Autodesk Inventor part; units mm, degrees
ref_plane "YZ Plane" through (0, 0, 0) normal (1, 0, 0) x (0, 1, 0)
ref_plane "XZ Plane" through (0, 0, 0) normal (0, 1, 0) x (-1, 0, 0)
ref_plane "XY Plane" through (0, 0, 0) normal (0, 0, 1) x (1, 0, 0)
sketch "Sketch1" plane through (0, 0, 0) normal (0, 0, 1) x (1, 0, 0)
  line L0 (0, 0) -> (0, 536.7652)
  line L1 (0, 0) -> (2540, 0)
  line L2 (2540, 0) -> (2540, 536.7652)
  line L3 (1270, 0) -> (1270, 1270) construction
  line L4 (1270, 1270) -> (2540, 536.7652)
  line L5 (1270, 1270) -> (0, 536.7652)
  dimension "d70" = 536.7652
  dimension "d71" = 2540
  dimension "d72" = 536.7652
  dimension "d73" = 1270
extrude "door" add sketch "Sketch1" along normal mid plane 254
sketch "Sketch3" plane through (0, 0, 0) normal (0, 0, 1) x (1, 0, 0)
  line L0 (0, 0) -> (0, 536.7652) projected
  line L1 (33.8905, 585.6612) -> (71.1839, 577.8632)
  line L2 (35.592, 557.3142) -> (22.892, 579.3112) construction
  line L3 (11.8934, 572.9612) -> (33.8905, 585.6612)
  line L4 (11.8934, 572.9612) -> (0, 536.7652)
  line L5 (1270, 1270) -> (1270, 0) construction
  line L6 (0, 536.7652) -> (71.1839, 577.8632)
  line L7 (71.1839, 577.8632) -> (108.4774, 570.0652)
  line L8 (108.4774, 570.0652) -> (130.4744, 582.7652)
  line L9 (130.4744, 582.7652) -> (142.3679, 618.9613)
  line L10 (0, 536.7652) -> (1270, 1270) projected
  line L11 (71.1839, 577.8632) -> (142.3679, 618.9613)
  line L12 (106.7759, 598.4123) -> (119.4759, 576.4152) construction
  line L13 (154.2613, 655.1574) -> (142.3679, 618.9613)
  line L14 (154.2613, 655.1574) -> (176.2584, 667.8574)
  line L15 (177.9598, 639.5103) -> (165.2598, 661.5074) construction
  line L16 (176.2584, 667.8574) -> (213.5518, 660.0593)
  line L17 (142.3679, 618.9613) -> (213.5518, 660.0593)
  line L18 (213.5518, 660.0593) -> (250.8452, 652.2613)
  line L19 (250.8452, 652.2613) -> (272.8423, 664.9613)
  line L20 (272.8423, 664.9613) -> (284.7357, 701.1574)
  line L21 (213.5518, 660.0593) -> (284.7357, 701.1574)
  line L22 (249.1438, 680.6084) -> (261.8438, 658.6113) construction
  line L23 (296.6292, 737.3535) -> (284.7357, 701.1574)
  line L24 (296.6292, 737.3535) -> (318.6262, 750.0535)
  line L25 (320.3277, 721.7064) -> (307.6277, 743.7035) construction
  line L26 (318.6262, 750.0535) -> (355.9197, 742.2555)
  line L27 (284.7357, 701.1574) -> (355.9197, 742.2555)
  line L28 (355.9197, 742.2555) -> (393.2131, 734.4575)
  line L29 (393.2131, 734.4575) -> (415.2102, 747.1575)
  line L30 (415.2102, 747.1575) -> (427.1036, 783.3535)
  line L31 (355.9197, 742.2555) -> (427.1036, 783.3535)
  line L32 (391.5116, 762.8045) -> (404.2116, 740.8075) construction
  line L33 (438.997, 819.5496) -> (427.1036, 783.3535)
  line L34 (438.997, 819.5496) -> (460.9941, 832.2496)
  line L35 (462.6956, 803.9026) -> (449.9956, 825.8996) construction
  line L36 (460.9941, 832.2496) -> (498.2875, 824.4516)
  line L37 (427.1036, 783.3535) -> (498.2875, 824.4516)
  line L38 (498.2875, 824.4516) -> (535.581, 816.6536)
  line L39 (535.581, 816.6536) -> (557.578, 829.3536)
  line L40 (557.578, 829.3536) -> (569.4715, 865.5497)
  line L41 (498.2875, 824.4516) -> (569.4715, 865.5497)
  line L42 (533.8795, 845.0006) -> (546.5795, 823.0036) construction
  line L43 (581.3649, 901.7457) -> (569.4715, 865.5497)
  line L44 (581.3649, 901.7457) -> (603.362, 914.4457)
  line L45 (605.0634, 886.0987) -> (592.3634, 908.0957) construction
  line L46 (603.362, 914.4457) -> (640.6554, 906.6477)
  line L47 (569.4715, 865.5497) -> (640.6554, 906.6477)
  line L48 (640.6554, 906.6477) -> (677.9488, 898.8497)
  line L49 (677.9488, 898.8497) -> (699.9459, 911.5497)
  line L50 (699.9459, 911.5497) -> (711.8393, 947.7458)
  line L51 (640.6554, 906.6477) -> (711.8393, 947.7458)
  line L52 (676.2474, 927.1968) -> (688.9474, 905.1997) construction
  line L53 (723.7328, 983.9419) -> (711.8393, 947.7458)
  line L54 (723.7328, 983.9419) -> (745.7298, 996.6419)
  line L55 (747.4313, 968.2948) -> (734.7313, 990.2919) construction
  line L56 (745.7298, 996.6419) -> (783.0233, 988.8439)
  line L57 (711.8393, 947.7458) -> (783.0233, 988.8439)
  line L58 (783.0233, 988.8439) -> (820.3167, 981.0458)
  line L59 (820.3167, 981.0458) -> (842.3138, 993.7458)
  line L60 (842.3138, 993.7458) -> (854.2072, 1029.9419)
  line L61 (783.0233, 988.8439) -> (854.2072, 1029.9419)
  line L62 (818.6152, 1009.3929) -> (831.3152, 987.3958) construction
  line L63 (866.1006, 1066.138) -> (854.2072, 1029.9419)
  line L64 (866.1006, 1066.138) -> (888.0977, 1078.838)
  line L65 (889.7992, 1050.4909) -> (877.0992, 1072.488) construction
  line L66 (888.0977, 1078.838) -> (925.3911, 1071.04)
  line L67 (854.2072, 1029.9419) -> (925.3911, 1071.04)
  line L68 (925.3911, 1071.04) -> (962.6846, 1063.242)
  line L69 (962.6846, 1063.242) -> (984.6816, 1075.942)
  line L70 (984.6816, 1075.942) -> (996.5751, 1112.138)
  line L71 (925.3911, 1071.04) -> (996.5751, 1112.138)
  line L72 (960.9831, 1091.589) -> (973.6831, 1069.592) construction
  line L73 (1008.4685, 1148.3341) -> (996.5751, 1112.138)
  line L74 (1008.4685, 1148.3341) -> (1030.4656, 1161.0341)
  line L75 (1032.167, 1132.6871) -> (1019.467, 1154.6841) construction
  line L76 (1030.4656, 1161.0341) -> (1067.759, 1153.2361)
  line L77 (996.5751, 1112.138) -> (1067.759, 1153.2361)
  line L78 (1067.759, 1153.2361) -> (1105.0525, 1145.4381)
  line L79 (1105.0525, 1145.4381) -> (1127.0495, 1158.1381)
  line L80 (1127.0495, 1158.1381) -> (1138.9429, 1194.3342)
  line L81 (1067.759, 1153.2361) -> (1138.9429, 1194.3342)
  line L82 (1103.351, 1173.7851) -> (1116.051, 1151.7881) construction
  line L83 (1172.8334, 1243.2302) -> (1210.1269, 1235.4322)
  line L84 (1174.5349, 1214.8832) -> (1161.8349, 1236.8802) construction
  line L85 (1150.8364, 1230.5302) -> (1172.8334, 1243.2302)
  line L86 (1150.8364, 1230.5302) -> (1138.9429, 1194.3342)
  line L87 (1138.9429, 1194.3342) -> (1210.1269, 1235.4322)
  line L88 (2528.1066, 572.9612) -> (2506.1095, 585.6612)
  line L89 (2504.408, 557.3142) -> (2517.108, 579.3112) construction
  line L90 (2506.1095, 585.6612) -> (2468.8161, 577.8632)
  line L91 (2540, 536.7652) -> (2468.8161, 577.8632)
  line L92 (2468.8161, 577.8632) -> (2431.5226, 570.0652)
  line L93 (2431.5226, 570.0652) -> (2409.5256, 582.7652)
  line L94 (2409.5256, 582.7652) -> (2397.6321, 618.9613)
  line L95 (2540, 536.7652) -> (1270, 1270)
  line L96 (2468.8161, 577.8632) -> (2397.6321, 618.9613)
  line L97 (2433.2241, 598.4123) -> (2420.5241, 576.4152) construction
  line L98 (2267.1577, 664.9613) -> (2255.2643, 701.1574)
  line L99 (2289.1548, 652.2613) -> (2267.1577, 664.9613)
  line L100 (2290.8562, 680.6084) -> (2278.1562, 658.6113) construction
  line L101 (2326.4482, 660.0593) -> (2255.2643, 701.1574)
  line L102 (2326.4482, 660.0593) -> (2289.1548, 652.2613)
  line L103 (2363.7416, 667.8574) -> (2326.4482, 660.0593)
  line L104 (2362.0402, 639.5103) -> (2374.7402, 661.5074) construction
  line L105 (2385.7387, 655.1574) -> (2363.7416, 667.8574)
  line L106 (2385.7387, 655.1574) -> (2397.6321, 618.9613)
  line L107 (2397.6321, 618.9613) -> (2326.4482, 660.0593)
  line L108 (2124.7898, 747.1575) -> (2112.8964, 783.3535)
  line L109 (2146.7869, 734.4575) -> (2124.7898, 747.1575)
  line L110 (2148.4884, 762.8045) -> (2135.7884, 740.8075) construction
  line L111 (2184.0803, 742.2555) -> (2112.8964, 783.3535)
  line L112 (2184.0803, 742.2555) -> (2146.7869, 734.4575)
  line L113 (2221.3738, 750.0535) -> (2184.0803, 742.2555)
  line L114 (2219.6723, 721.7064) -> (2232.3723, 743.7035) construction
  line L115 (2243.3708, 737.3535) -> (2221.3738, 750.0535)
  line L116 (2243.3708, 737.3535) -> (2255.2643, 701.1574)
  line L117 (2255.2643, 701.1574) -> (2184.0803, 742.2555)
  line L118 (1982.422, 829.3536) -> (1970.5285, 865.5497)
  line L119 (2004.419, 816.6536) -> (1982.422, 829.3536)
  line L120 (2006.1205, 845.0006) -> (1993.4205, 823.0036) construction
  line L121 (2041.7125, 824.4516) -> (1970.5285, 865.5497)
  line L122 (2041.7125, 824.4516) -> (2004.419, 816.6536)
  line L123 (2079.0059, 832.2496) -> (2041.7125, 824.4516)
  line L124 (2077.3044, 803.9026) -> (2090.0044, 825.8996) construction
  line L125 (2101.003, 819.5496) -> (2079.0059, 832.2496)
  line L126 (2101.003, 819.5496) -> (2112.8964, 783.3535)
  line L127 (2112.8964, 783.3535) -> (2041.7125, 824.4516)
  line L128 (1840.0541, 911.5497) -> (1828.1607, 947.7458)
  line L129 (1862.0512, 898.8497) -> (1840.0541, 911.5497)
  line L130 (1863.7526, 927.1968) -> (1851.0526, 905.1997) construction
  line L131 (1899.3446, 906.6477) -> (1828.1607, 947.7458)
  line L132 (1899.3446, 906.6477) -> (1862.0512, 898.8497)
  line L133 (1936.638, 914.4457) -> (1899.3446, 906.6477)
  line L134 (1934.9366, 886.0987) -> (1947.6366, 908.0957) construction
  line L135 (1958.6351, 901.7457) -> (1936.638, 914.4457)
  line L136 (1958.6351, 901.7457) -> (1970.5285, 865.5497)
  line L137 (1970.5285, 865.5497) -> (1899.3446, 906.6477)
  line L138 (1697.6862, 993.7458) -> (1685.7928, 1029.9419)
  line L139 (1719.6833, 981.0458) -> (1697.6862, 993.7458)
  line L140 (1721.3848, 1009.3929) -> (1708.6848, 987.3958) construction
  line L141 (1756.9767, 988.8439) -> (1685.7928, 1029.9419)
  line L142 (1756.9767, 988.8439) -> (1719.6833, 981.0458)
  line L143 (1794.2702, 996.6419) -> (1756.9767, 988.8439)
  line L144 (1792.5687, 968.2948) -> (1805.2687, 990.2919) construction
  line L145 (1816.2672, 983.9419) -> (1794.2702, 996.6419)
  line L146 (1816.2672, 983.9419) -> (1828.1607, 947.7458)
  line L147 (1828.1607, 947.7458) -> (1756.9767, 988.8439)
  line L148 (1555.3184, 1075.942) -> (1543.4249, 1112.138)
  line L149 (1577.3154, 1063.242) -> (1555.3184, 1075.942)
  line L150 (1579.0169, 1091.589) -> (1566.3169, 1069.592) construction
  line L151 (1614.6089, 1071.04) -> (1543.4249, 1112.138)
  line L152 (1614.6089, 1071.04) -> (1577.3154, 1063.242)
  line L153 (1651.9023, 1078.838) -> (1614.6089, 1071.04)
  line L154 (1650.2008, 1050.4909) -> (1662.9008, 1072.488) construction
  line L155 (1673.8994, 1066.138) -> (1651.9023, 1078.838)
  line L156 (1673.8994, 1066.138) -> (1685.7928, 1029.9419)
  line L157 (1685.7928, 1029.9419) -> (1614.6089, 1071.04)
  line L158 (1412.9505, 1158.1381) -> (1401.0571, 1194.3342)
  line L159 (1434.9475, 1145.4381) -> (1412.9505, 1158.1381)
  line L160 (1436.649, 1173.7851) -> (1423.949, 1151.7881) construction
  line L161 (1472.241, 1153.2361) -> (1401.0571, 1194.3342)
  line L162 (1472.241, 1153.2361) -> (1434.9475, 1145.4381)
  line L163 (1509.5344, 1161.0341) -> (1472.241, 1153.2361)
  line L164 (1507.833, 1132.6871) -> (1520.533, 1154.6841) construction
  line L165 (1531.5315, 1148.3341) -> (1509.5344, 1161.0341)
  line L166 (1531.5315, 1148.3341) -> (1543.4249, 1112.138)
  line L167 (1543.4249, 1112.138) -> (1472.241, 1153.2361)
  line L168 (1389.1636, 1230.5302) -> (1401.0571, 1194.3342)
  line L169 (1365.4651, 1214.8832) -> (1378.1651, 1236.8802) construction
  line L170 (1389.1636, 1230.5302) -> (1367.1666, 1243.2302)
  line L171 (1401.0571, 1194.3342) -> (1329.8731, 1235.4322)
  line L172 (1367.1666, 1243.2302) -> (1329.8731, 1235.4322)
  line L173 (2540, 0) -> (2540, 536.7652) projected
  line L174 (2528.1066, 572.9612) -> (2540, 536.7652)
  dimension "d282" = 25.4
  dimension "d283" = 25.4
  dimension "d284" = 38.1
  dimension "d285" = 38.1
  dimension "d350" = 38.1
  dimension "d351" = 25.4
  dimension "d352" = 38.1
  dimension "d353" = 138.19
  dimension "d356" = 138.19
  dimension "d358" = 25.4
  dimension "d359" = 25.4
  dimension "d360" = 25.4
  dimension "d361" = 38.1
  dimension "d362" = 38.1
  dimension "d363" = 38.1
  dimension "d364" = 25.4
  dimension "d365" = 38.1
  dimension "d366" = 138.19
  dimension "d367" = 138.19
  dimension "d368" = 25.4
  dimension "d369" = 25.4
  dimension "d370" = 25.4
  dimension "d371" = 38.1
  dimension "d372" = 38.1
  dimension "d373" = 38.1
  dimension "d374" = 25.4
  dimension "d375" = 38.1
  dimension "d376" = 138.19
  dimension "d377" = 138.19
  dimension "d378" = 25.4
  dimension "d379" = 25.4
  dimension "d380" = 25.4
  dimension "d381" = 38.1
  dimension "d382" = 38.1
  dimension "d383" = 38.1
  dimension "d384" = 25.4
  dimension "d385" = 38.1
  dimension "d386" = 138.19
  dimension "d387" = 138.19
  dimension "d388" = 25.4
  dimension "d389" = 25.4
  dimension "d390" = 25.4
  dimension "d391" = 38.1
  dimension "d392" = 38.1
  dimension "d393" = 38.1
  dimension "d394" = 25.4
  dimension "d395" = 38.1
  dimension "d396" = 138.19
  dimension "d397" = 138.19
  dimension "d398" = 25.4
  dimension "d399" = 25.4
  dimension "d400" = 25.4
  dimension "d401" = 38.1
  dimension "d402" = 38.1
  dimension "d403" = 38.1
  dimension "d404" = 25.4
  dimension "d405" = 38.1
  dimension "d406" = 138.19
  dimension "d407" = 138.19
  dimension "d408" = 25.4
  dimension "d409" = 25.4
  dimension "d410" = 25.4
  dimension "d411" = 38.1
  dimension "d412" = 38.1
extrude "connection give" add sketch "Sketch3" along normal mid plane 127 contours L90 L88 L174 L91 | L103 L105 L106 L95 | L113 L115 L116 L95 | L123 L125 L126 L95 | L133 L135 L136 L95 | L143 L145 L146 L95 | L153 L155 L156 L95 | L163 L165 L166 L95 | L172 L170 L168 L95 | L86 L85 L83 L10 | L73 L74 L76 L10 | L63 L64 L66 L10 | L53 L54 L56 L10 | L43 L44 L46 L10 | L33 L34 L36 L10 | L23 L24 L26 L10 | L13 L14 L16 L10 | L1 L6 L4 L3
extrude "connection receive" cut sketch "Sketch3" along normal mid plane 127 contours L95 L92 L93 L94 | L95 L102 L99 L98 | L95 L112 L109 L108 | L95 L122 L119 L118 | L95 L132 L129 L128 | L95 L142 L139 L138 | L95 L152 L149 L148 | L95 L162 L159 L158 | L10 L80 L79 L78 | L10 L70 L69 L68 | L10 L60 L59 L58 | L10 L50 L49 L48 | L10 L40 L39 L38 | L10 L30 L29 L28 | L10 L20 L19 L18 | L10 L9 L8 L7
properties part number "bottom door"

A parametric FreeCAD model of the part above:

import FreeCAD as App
import Part
import Sketcher
Q = App.Units.Quantity


def add_polygon(sketch, points):
    """Adds a closed chain of lines whose ends are joined by coincident constraints."""
    first, n = sketch.GeometryCount, len(points)
    for a, b in zip(points, points[1:] + points[:1]):
        sketch.addGeometry(Part.LineSegment(App.Vector(*a, 0), App.Vector(*b, 0)), False)
    for i in range(n):
        sketch.addConstraint(Sketcher.Constraint("Coincident", first + i, 2, first + (i + 1) % n, 1))

doc = App.newDocument("Part")
body = doc.addObject("PartDesign::Body", "Body")

# Sketch on XY plane
sketch1 = body.newObject("Sketcher::SketchObject", "Sketch")
sketch1.AttachmentSupport = (doc.getObject("XY_Plane"), [""])
sketch1.MapMode = "FlatFace"
add_polygon(sketch1, [(0, 536.7652), (0, 0), (2540, 0), (2540, 536.7652), (1270, 1270)])  # lines 0-4
sketch1.addConstraint(Sketcher.Constraint("Vertical", 0))
sketch1.addConstraint(Sketcher.Constraint("Horizontal", 1))
sketch1.addConstraint(Sketcher.Constraint("Vertical", 2))
sketch1.addConstraint(Sketcher.Constraint("Coincident", 0, 2, -1, 1))
sketch1.addConstraint(Sketcher.Constraint("Horizontal", 2, 2, 4, 2))
sketch1.addConstraint(Sketcher.Constraint("Equal", 3, 4))
sketch1.addConstraint(Sketcher.Constraint("DistanceX", 1, 1, 1, 2, Q("100 in")))
sketch1.addConstraint(Sketcher.Constraint("DistanceY", -1, 1, 3, 2, Q("50 in")))
sketch1.addConstraint(Sketcher.Constraint("DistanceY", 0, 2, 0, 1, Q("21.1325 in")))
pad1 = body.newObject("PartDesign::Pad", "Pad")
pad1.Profile = sketch1
pad1.Length = Q("10 in")
pad1.Midplane = True

# Sketch on XY plane
sketch2 = body.newObject("Sketcher::SketchObject", "Sketch001")
sketch2.AttachmentSupport = (doc.getObject("XY_Plane"), [""])
sketch2.MapMode = "FlatFace"
add_polygon(sketch2, [(2506.1095, 585.6612), (2468.8161, 577.8632), (2540, 536.7652), (2528.1066, 572.9612)])  # lines 0-3
add_polygon(sketch2, [(2363.7416, 667.8574), (2326.448236, 660.059362), (2397.6321, 618.9613), (2385.7387, 655.1574)])  # lines 4-7
add_polygon(sketch2, [(2221.3738, 750.0535), (2184.08031, 742.255517), (2255.2643, 701.1574), (2243.3708, 737.3535)])  # lines 8-11
add_polygon(sketch2, [(2079.0059, 832.2496), (2041.712503, 824.451604), (2112.8964, 783.3535), (2101.003, 819.5496)])  # lines 12-15
add_polygon(sketch2, [(1936.638, 914.4457), (1899.34462, 906.647735), (1970.5285, 865.5497), (1958.6351, 901.7457)])  # lines 16-19
add_polygon(sketch2, [(1794.2702, 996.6419), (1756.976694, 988.84389), (1828.1607, 947.7458), (1816.2672, 983.9419)])  # lines 20-23
add_polygon(sketch2, [(1651.9023, 1078.838), (1614.608887, 1071.039978), (1685.7928, 1029.9419), (1673.8994, 1066.138)])  # lines 24-27
add_polygon(sketch2, [(1509.5344, 1161.0341), (1472.241005, 1153.236108), (1543.4249, 1112.138), (1531.5315, 1148.3341)])  # lines 28-31
add_polygon(sketch2, [(1367.1666, 1243.2302), (1329.873122, 1235.432239), (1401.0571, 1194.3342), (1389.1636, 1230.5302)])  # lines 32-35
add_polygon(sketch2, [(1150.8364, 1230.5302), (1138.942921, 1194.334164), (1210.1269, 1235.4322), (1172.8334, 1243.2302)])  # lines 36-39
add_polygon(sketch2, [(1008.4685, 1148.3341), (996.57507, 1112.138052), (1067.759, 1153.2361), (1030.4656, 1161.0341)])  # lines 40-43
add_polygon(sketch2, [(866.1006, 1066.138), (854.207188, 1029.941922), (925.3911, 1071.04), (888.0977, 1078.838)])  # lines 44-47
add_polygon(sketch2, [(723.7328, 983.9419), (711.839305, 947.745791), (783.0233, 988.8439), (745.7298, 996.6419)])  # lines 48-51
add_polygon(sketch2, [(581.3649, 901.7457), (569.471498, 865.549704), (640.6554, 906.6477), (603.362, 914.4457)])  # lines 52-55
add_polygon(sketch2, [(438.997, 819.5496), (427.103572, 783.353548), (498.2875, 824.4516), (460.9941, 832.2496)])  # lines 56-59
add_polygon(sketch2, [(296.6292, 737.3535), (284.73569, 701.157418), (355.9197, 742.2555), (318.6262, 750.0535)])  # lines 60-63
add_polygon(sketch2, [(154.2613, 655.1574), (142.367882, 618.961331), (213.5518, 660.0593), (176.2584, 667.8574)])  # lines 64-67
add_polygon(sketch2, [(71.1839, 577.8632), (33.8905, 585.6612), (11.8934, 572.9612), (0, 536.7652)])  # lines 68-71
sketch2.addConstraint(Sketcher.Constraint("PointOnObject", 70, 2, -2))
sketch2.addConstraint(Sketcher.Constraint("Parallel", 1, 3))
sketch2.addConstraint(Sketcher.Constraint("Parallel", 0, 4))
sketch2.addConstraint(Sketcher.Constraint("Parallel", 3, 5))
sketch2.addConstraint(Sketcher.Constraint("Parallel", 2, 6))
sketch2.addConstraint(Sketcher.Constraint("Parallel", 5, 7))
sketch2.addConstraint(Sketcher.Constraint("Parallel", 4, 8))
sketch2.addConstraint(Sketcher.Constraint("Parallel", 7, 9))
sketch2.addConstraint(Sketcher.Constraint("Parallel", 6, 10))
sketch2.addConstraint(Sketcher.Constraint("Parallel", 9, 11))
sketch2.addConstraint(Sketcher.Constraint("Parallel", 8, 12))
sketch2.addConstraint(Sketcher.Constraint("Parallel", 11, 13))
sketch2.addConstraint(Sketcher.Constraint("Parallel", 10, 14))
sketch2.addConstraint(Sketcher.Constraint("Parallel", 13, 15))
sketch2.addConstraint(Sketcher.Constraint("Parallel", 12, 16))
sketch2.addConstraint(Sketcher.Constraint("Parallel", 15, 17))
sketch2.addConstraint(Sketcher.Constraint("Parallel", 14, 18))
sketch2.addConstraint(Sketcher.Constraint("Parallel", 17, 19))
sketch2.addConstraint(Sketcher.Constraint("Parallel", 16, 20))
sketch2.addConstraint(Sketcher.Constraint("Parallel", 19, 21))
sketch2.addConstraint(Sketcher.Constraint("Parallel", 18, 22))
sketch2.addConstraint(Sketcher.Constraint("Parallel", 21, 23))
sketch2.addConstraint(Sketcher.Constraint("Parallel", 20, 24))
sketch2.addConstraint(Sketcher.Constraint("Parallel", 23, 25))
sketch2.addConstraint(Sketcher.Constraint("Parallel", 22, 26))
sketch2.addConstraint(Sketcher.Constraint("Parallel", 25, 27))
sketch2.addConstraint(Sketcher.Constraint("Parallel", 24, 28))
sketch2.addConstraint(Sketcher.Constraint("Parallel", 27, 29))
sketch2.addConstraint(Sketcher.Constraint("Parallel", 26, 30))
sketch2.addConstraint(Sketcher.Constraint("Parallel", 29, 31))
sketch2.addConstraint(Sketcher.Constraint("Parallel", 28, 32))
sketch2.addConstraint(Sketcher.Constraint("Parallel", 31, 33))
sketch2.addConstraint(Sketcher.Constraint("Parallel", 30, 34))
sketch2.addConstraint(Sketcher.Constraint("Parallel", 33, 35))
sketch2.addConstraint(Sketcher.Constraint("Parallel", 37, 39))
sketch2.addConstraint(Sketcher.Constraint("Parallel", 36, 40))
sketch2.addConstraint(Sketcher.Constraint("Parallel", 39, 41))
sketch2.addConstraint(Sketcher.Constraint("Parallel", 38, 42))
sketch2.addConstraint(Sketcher.Constraint("Parallel", 41, 43))
sketch2.addConstraint(Sketcher.Constraint("Parallel", 40, 44))
sketch2.addConstraint(Sketcher.Constraint("Parallel", 43, 45))
sketch2.addConstraint(Sketcher.Constraint("Parallel", 42, 46))
sketch2.addConstraint(Sketcher.Constraint("Parallel", 45, 47))
sketch2.addConstraint(Sketcher.Constraint("Parallel", 44, 48))
sketch2.addConstraint(Sketcher.Constraint("Parallel", 47, 49))
sketch2.addConstraint(Sketcher.Constraint("Parallel", 46, 50))
sketch2.addConstraint(Sketcher.Constraint("Parallel", 49, 51))
sketch2.addConstraint(Sketcher.Constraint("Parallel", 48, 52))
sketch2.addConstraint(Sketcher.Constraint("Parallel", 51, 53))
sketch2.addConstraint(Sketcher.Constraint("Parallel", 50, 54))
sketch2.addConstraint(Sketcher.Constraint("Parallel", 53, 55))
sketch2.addConstraint(Sketcher.Constraint("Parallel", 52, 56))
sketch2.addConstraint(Sketcher.Constraint("Parallel", 55, 57))
sketch2.addConstraint(Sketcher.Constraint("Parallel", 54, 58))
sketch2.addConstraint(Sketcher.Constraint("Parallel", 57, 59))
sketch2.addConstraint(Sketcher.Constraint("Parallel", 56, 60))
sketch2.addConstraint(Sketcher.Constraint("Parallel", 59, 61))
sketch2.addConstraint(Sketcher.Constraint("Parallel", 58, 62))
sketch2.addConstraint(Sketcher.Constraint("Parallel", 61, 63))
sketch2.addConstraint(Sketcher.Constraint("Parallel", 60, 64))
sketch2.addConstraint(Sketcher.Constraint("Parallel", 63, 65))
sketch2.addConstraint(Sketcher.Constraint("Parallel", 62, 66))
sketch2.addConstraint(Sketcher.Constraint("Parallel", 65, 67))
sketch2.addConstraint(Sketcher.Constraint("Parallel", 66, 68))
sketch2.addConstraint(Sketcher.Constraint("Parallel", 67, 69))
sketch2.addConstraint(Sketcher.Constraint("Parallel", 64, 70))
sketch2.addConstraint(Sketcher.Constraint("Parallel", 69, 71))
sketch2.addConstraint(Sketcher.Constraint("Horizontal", 33, 2, 36, 2))
sketch2.addConstraint(Sketcher.Constraint("Horizontal", 32, 2, 37, 2))
sketch2.addConstraint(Sketcher.Constraint("Horizontal", 35, 2, 38, 2))
sketch2.addConstraint(Sketcher.Constraint("Horizontal", 34, 2, 39, 2))
sketch2.addConstraint(Sketcher.Constraint("Horizontal", 29, 2, 40, 2))
sketch2.addConstraint(Sketcher.Constraint("Horizontal", 28, 2, 41, 2))
sketch2.addConstraint(Sketcher.Constraint("Horizontal", 31, 2, 42, 2))
sketch2.addConstraint(Sketcher.Constraint("Horizontal", 25, 2, 44, 2))
sketch2.addConstraint(Sketcher.Constraint("Horizontal", 24, 2, 45, 2))
sketch2.addConstraint(Sketcher.Constraint("Horizontal", 27, 2, 46, 2))
sketch2.addConstraint(Sketcher.Constraint("Horizontal", 21, 2, 48, 2))
sketch2.addConstraint(Sketcher.Constraint("Horizontal", 20, 2, 49, 2))
sketch2.addConstraint(Sketcher.Constraint("Horizontal", 23, 2, 50, 2))
sketch2.addConstraint(Sketcher.Constraint("Horizontal", 17, 2, 52, 2))
sketch2.addConstraint(Sketcher.Constraint("Horizontal", 16, 2, 53, 2))
sketch2.addConstraint(Sketcher.Constraint("Horizontal", 19, 2, 54, 2))
sketch2.addConstraint(Sketcher.Constraint("Horizontal", 13, 2, 56, 2))
sketch2.addConstraint(Sketcher.Constraint("Horizontal", 12, 2, 57, 2))
sketch2.addConstraint(Sketcher.Constraint("Horizontal", 15, 2, 58, 2))
sketch2.addConstraint(Sketcher.Constraint("Horizontal", 9, 2, 60, 2))
sketch2.addConstraint(Sketcher.Constraint("Horizontal", 8, 2, 61, 2))
sketch2.addConstraint(Sketcher.Constraint("Horizontal", 11, 2, 62, 2))
sketch2.addConstraint(Sketcher.Constraint("Horizontal", 5, 2, 64, 2))
sketch2.addConstraint(Sketcher.Constraint("Horizontal", 4, 2, 65, 2))
sketch2.addConstraint(Sketcher.Constraint("Horizontal", 7, 2, 66, 2))
sketch2.addConstraint(Sketcher.Constraint("Horizontal", 3, 2, 68, 2))
sketch2.addConstraint(Sketcher.Constraint("Horizontal", 2, 2, 69, 2))
sketch2.addConstraint(Sketcher.Constraint("Horizontal", 1, 2, 70, 2))
sketch2.addConstraint(Sketcher.Constraint("Equal", 0, 2))
sketch2.addConstraint(Sketcher.Constraint("Equal", 2, 4))
sketch2.addConstraint(Sketcher.Constraint("Equal", 1, 5))
sketch2.addConstraint(Sketcher.Constraint("Equal", 6, 8))
sketch2.addConstraint(Sketcher.Constraint("Equal", 5, 9))
sketch2.addConstraint(Sketcher.Constraint("Equal", 10, 12))
sketch2.addConstraint(Sketcher.Constraint("Equal", 9, 13))
sketch2.addConstraint(Sketcher.Constraint("Equal", 14, 16))
sketch2.addConstraint(Sketcher.Constraint("Equal", 13, 17))
sketch2.addConstraint(Sketcher.Constraint("Equal", 18, 20))
sketch2.addConstraint(Sketcher.Constraint("Equal", 17, 21))
sketch2.addConstraint(Sketcher.Constraint("Equal", 22, 24))
sketch2.addConstraint(Sketcher.Constraint("Equal", 21, 25))
sketch2.addConstraint(Sketcher.Constraint("Equal", 26, 28))
sketch2.addConstraint(Sketcher.Constraint("Equal", 25, 29))
sketch2.addConstraint(Sketcher.Constraint("Equal", 30, 32))
sketch2.addConstraint(Sketcher.Constraint("Equal", 29, 33))
sketch2.addConstraint(Sketcher.Constraint("Equal", 34, 36))
sketch2.addConstraint(Sketcher.Constraint("Equal", 33, 37))
sketch2.addConstraint(Sketcher.Constraint("Distance", 3, Q("1 in")))
sketch2.addConstraint(Sketcher.Constraint("Distance", 0, Q("1.5 in")))
sketch2.addConstraint(Sketcher.Constraint("DistanceX", -1, 1, 1, 2, Q("100 in")))
sketch2.addConstraint(Sketcher.Constraint("Angle", 1, Q("-30 deg")))
sketch2.addConstraint(Sketcher.Constraint("DistanceY", -1, 1, 30, 2, Q("45.21 in")))
sketch2.addConstraint(Sketcher.Constraint("Angle", 0, Q("-168.1897 deg")))
sketch2.addConstraint(Sketcher.Constraint("DistanceY", -1, 1, 1, 2, Q("21.1325 in")))
sketch2.addConstraint(Sketcher.Constraint("DistanceY", -1, 1, 6, 2, Q("25.7936 in")))
sketch2.addConstraint(Sketcher.Constraint("DistanceX", -1, 1, 7, 2, Q("93.0607 in")))
sketch2.addConstraint(Sketcher.Constraint("DistanceX", -1, 1, 13, 2, Q("83.1849 in")))
sketch2.addConstraint(Sketcher.Constraint("DistanceY", -1, 1, 13, 2, Q("30.8407 in")))
sketch2.addConstraint(Sketcher.Constraint("DistanceY", -1, 1, 16, 2, Q("35.6948 in")))
sketch2.addConstraint(Sketcher.Constraint("DistanceX", -1, 1, 19, 2, Q("76.2456 in")))
sketch2.addConstraint(Sketcher.Constraint("DistanceX", -1, 1, 20, 2, Q("69.1723 in")))
sketch2.addConstraint(Sketcher.Constraint("DistanceX", -1, 1, 25, 2, Q("66.3698 in")))
sketch2.addConstraint(Sketcher.Constraint("DistanceY", -1, 1, 25, 2, Q("40.5489 in")))
sketch2.addConstraint(Sketcher.Constraint("DistanceX", -1, 1, 31, 2, Q("59.4305 in")))
sketch2.addConstraint(Sketcher.Constraint("DistanceX", -1, 1, 32, 2, Q("52.3572 in")))
sketch2.addConstraint(Sketcher.Constraint("DistanceX", -1, 1, 37, 2, Q("47.6428 in")))
sketch2.addConstraint(Sketcher.Constraint("DistanceX", -1, 1, 42, 2, Q("40.5695 in")))
sketch2.addConstraint(Sketcher.Constraint("DistanceX", -1, 1, 44, 2, Q("33.6302 in")))
sketch2.addConstraint(Sketcher.Constraint("DistanceX", -1, 1, 49, 2, Q("30.8277 in")))
sketch2.addConstraint(Sketcher.Constraint("DistanceX", -1, 1, 54, 2, Q("23.7544 in")))
sketch2.addConstraint(Sketcher.Constraint("DistanceX", -1, 1, 56, 2, Q("16.8151 in")))
sketch2.addConstraint(Sketcher.Constraint("DistanceX", -1, 1, 66, 2, Q("6.9393 in")))
sketch2.addConstraint(Sketcher.Constraint("DistanceX", -1, 1, 8, 2, 2184.0803))
sketch2.addConstraint(Sketcher.Constraint("DistanceY", -1, 1, 8, 2, 742.2555))
sketch2.addConstraint(Sketcher.Constraint("DistanceY", -1, 1, 20, 2, 988.844))
sketch2.addConstraint(Sketcher.Constraint("DistanceY", -1, 1, 32, 2, 1235.4322))
sketch2.addConstraint(Sketcher.Constraint("DistanceX", -1, 1, 60, 2, 284.7357))
pad2 = body.newObject("PartDesign::Pad", "Pad001")
pad2.Profile = sketch2
pad2.Length = Q("5 in")
pad2.Midplane = True

# Sketch on XY plane
sketch3 = body.newObject("Sketcher::SketchObject", "Sketch002")
sketch3.AttachmentSupport = (doc.getObject("XY_Plane"), [""])
sketch3.MapMode = "FlatFace"
add_polygon(sketch3, [(2468.816118, 577.863231), (2397.6321, 618.9613), (2409.5256, 582.7652), (2431.5226, 570.0652)])  # lines 0-3
add_polygon(sketch3, [(2326.448236, 660.059362), (2255.2643, 701.1574), (2267.1577, 664.9613), (2289.1548, 652.2613)])  # lines 4-7
add_polygon(sketch3, [(2184.08031, 742.255517), (2112.8964, 783.3535), (2124.7898, 747.1575), (2146.7869, 734.4575)])  # lines 8-11
add_polygon(sketch3, [(2041.712503, 824.451604), (1970.5285, 865.5497), (1982.422, 829.3536), (2004.419, 816.6536)])  # lines 12-15
add_polygon(sketch3, [(1899.34462, 906.647735), (1828.1607, 947.7458), (1840.0541, 911.5497), (1862.0512, 898.8497)])  # lines 16-19
add_polygon(sketch3, [(1756.976694, 988.84389), (1685.7928, 1029.9419), (1697.6862, 993.7458), (1719.6833, 981.0458)])  # lines 20-23
add_polygon(sketch3, [(1614.608887, 1071.039978), (1543.4249, 1112.138), (1555.3184, 1075.942), (1577.3154, 1063.242)])  # lines 24-27
add_polygon(sketch3, [(1472.241005, 1153.236108), (1401.0571, 1194.3342), (1412.9505, 1158.1381), (1434.9475, 1145.4381)])  # lines 28-31
add_polygon(sketch3, [(1138.942921, 1194.334164), (1067.759, 1153.2361), (1105.0525, 1145.4381), (1127.0495, 1158.1381)])  # lines 32-35
add_polygon(sketch3, [(996.57507, 1112.138052), (925.3911, 1071.04), (962.6846, 1063.242), (984.6816, 1075.942)])  # lines 36-39
add_polygon(sketch3, [(854.207188, 1029.941922), (783.0233, 988.8439), (820.3167, 981.0458), (842.3138, 993.7458)])  # lines 40-43
add_polygon(sketch3, [(711.839305, 947.745791), (640.6554, 906.6477), (677.9488, 898.8497), (699.9459, 911.5497)])  # lines 44-47
add_polygon(sketch3, [(569.471498, 865.549704), (498.2875, 824.4516), (535.581, 816.6536), (557.578, 829.3536)])  # lines 48-51
add_polygon(sketch3, [(427.103572, 783.353548), (355.9197, 742.2555), (393.2131, 734.4575), (415.2102, 747.1575)])  # lines 52-55
add_polygon(sketch3, [(284.73569, 701.157418), (213.5518, 660.0593), (250.8452, 652.2613), (272.8423, 664.9613)])  # lines 56-59
add_polygon(sketch3, [(142.367882, 618.961331), (71.1839, 577.8632), (108.4774, 570.0652), (130.4744, 582.7652)])  # lines 60-63
sketch3.addConstraint(Sketcher.Constraint("Parallel", 0, 2))
sketch3.addConstraint(Sketcher.Constraint("Parallel", 2, 4))
sketch3.addConstraint(Sketcher.Constraint("Parallel", 1, 5))
sketch3.addConstraint(Sketcher.Constraint("Parallel", 4, 6))
sketch3.addConstraint(Sketcher.Constraint("Parallel", 3, 7))
sketch3.addConstraint(Sketcher.Constraint("Parallel", 6, 8))
sketch3.addConstraint(Sketcher.Constraint("Parallel", 5, 9))
sketch3.addConstraint(Sketcher.Constraint("Parallel", 8, 10))
sketch3.addConstraint(Sketcher.Constraint("Parallel", 7, 11))
sketch3.addConstraint(Sketcher.Constraint("Parallel", 10, 12))
sketch3.addConstraint(Sketcher.Constraint("Parallel", 9, 13))
sketch3.addConstraint(Sketcher.Constraint("Parallel", 12, 14))
sketch3.addConstraint(Sketcher.Constraint("Parallel", 11, 15))
sketch3.addConstraint(Sketcher.Constraint("Parallel", 14, 16))
sketch3.addConstraint(Sketcher.Constraint("Parallel", 13, 17))
sketch3.addConstraint(Sketcher.Constraint("Parallel", 16, 18))
sketch3.addConstraint(Sketcher.Constraint("Parallel", 15, 19))
sketch3.addConstraint(Sketcher.Constraint("Parallel", 18, 20))
sketch3.addConstraint(Sketcher.Constraint("Parallel", 17, 21))
sketch3.addConstraint(Sketcher.Constraint("Parallel", 20, 22))
sketch3.addConstraint(Sketcher.Constraint("Parallel", 19, 23))
sketch3.addConstraint(Sketcher.Constraint("Parallel", 22, 24))
sketch3.addConstraint(Sketcher.Constraint("Parallel", 21, 25))
sketch3.addConstraint(Sketcher.Constraint("Parallel", 24, 26))
sketch3.addConstraint(Sketcher.Constraint("Parallel", 23, 27))
sketch3.addConstraint(Sketcher.Constraint("Parallel", 26, 28))
sketch3.addConstraint(Sketcher.Constraint("Parallel", 25, 29))
sketch3.addConstraint(Sketcher.Constraint("Parallel", 28, 30))
sketch3.addConstraint(Sketcher.Constraint("Parallel", 27, 31))
sketch3.addConstraint(Sketcher.Constraint("Parallel", 32, 34))
sketch3.addConstraint(Sketcher.Constraint("Parallel", 34, 36))
sketch3.addConstraint(Sketcher.Constraint("Parallel", 33, 37))
sketch3.addConstraint(Sketcher.Constraint("Parallel", 36, 38))
sketch3.addConstraint(Sketcher.Constraint("Parallel", 35, 39))
sketch3.addConstraint(Sketcher.Constraint("Parallel", 38, 40))
sketch3.addConstraint(Sketcher.Constraint("Parallel", 37, 41))
sketch3.addConstraint(Sketcher.Constraint("Parallel", 40, 42))
sketch3.addConstraint(Sketcher.Constraint("Parallel", 39, 43))
sketch3.addConstraint(Sketcher.Constraint("Parallel", 42, 44))
sketch3.addConstraint(Sketcher.Constraint("Parallel", 41, 45))
sketch3.addConstraint(Sketcher.Constraint("Parallel", 44, 46))
sketch3.addConstraint(Sketcher.Constraint("Parallel", 43, 47))
sketch3.addConstraint(Sketcher.Constraint("Parallel", 46, 48))
sketch3.addConstraint(Sketcher.Constraint("Parallel", 45, 49))
sketch3.addConstraint(Sketcher.Constraint("Parallel", 48, 50))
sketch3.addConstraint(Sketcher.Constraint("Parallel", 47, 51))
sketch3.addConstraint(Sketcher.Constraint("Parallel", 50, 52))
sketch3.addConstraint(Sketcher.Constraint("Parallel", 49, 53))
sketch3.addConstraint(Sketcher.Constraint("Parallel", 52, 54))
sketch3.addConstraint(Sketcher.Constraint("Parallel", 51, 55))
sketch3.addConstraint(Sketcher.Constraint("Parallel", 54, 56))
sketch3.addConstraint(Sketcher.Constraint("Parallel", 53, 57))
sketch3.addConstraint(Sketcher.Constraint("Parallel", 56, 58))
sketch3.addConstraint(Sketcher.Constraint("Parallel", 55, 59))
sketch3.addConstraint(Sketcher.Constraint("Parallel", 58, 60))
sketch3.addConstraint(Sketcher.Constraint("Parallel", 57, 61))
sketch3.addConstraint(Sketcher.Constraint("Parallel", 60, 62))
sketch3.addConstraint(Sketcher.Constraint("Parallel", 59, 63))
sketch3.addConstraint(Sketcher.Constraint("Horizontal", 31, 2, 32, 2))
sketch3.addConstraint(Sketcher.Constraint("Horizontal", 30, 2, 33, 2))
sketch3.addConstraint(Sketcher.Constraint("Horizontal", 29, 2, 34, 2))
sketch3.addConstraint(Sketcher.Constraint("Horizontal", 28, 2, 35, 2))
sketch3.addConstraint(Sketcher.Constraint("Horizontal", 27, 2, 36, 2))
sketch3.addConstraint(Sketcher.Constraint("Horizontal", 26, 2, 37, 2))
sketch3.addConstraint(Sketcher.Constraint("Horizontal", 25, 2, 38, 2))
sketch3.addConstraint(Sketcher.Constraint("Horizontal", 23, 2, 40, 2))
sketch3.addConstraint(Sketcher.Constraint("Horizontal", 22, 2, 41, 2))
sketch3.addConstraint(Sketcher.Constraint("Horizontal", 21, 2, 42, 2))
sketch3.addConstraint(Sketcher.Constraint("Horizontal", 19, 2, 44, 2))
sketch3.addConstraint(Sketcher.Constraint("Horizontal", 18, 2, 45, 2))
sketch3.addConstraint(Sketcher.Constraint("Horizontal", 17, 2, 46, 2))
sketch3.addConstraint(Sketcher.Constraint("Horizontal", 15, 2, 48, 2))
sketch3.addConstraint(Sketcher.Constraint("Horizontal", 14, 2, 49, 2))
sketch3.addConstraint(Sketcher.Constraint("Horizontal", 13, 2, 50, 2))
sketch3.addConstraint(Sketcher.Constraint("Horizontal", 11, 2, 52, 2))
sketch3.addConstraint(Sketcher.Constraint("Horizontal", 10, 2, 53, 2))
sketch3.addConstraint(Sketcher.Constraint("Horizontal", 9, 2, 54, 2))
sketch3.addConstraint(Sketcher.Constraint("Horizontal", 7, 2, 56, 2))
sketch3.addConstraint(Sketcher.Constraint("Horizontal", 6, 2, 57, 2))
sketch3.addConstraint(Sketcher.Constraint("Horizontal", 5, 2, 58, 2))
sketch3.addConstraint(Sketcher.Constraint("Horizontal", 3, 2, 60, 2))
sketch3.addConstraint(Sketcher.Constraint("Horizontal", 2, 2, 61, 2))
sketch3.addConstraint(Sketcher.Constraint("Horizontal", 1, 2, 62, 2))
sketch3.addConstraint(Sketcher.Constraint("Equal", 1, 3))
sketch3.addConstraint(Sketcher.Constraint("Equal", 0, 4))
sketch3.addConstraint(Sketcher.Constraint("Equal", 3, 5))
sketch3.addConstraint(Sketcher.Constraint("Equal", 4, 8))
sketch3.addConstraint(Sketcher.Constraint("Equal", 7, 9))
sketch3.addConstraint(Sketcher.Constraint("Equal", 8, 12))
sketch3.addConstraint(Sketcher.Constraint("Equal", 11, 13))
sketch3.addConstraint(Sketcher.Constraint("Equal", 12, 16))
sketch3.addConstraint(Sketcher.Constraint("Equal", 15, 17))
sketch3.addConstraint(Sketcher.Constraint("Equal", 16, 20))
sketch3.addConstraint(Sketcher.Constraint("Equal", 19, 21))
sketch3.addConstraint(Sketcher.Constraint("Equal", 20, 24))
sketch3.addConstraint(Sketcher.Constraint("Equal", 23, 25))
sketch3.addConstraint(Sketcher.Constraint("Equal", 24, 28))
sketch3.addConstraint(Sketcher.Constraint("Equal", 27, 29))
sketch3.addConstraint(Sketcher.Constraint("Equal", 28, 32))
sketch3.addConstraint(Sketcher.Constraint("Equal", 31, 33))
sketch3.addConstraint(Sketcher.Constraint("Distance", 2, Q("1 in")))
sketch3.addConstraint(Sketcher.Constraint("Distance", 1, Q("1.5 in")))
sketch3.addConstraint(Sketcher.Constraint("Angle", 0, Q("150 deg")))
sketch3.addConstraint(Sketcher.Constraint("Angle", 1, Q("-71.8102 deg")))
sketch3.addConstraint(Sketcher.Constraint("DistanceX", -1, 1, 25, 2, Q("61.233 in")))
sketch3.addConstraint(Sketcher.Constraint("DistanceY", -1, 1, 29, 2, Q("45.596 in")))
sketch3.addConstraint(Sketcher.Constraint("DistanceX", -1, 1, 30, 2, Q("56.494 in")))
sketch3.addConstraint(Sketcher.Constraint("DistanceX", -1, 1, 33, 2, Q("43.506 in")))
sketch3.addConstraint(Sketcher.Constraint("DistanceX", -1, 1, 38, 2, Q("38.767 in")))
sketch3.addConstraint(Sketcher.Constraint("DistanceY", -1, 1, 1, 2, Q("22.9435 in")))
sketch3.addConstraint(Sketcher.Constraint("DistanceX", -1, 1, 6, 2, Q("90.1242 in")))
sketch3.addConstraint(Sketcher.Constraint("DistanceX", -1, 1, 8, 2, Q("83.1849 in")))
sketch3.addConstraint(Sketcher.Constraint("DistanceY", -1, 1, 8, 2, Q("30.8407 in")))
sketch3.addConstraint(Sketcher.Constraint("DistanceX", -1, 1, 13, 2, Q("78.0481 in")))
sketch3.addConstraint(Sketcher.Constraint("DistanceX", -1, 1, 18, 2, Q("73.3091 in")))
sketch3.addConstraint(Sketcher.Constraint("DistanceY", -1, 1, 19, 2, Q("35.6948 in")))
sketch3.addConstraint(Sketcher.Constraint("DistanceX", -1, 1, 20, 2, Q("66.3698 in")))
sketch3.addConstraint(Sketcher.Constraint("DistanceY", -1, 1, 20, 2, Q("40.5489 in")))
sketch3.addConstraint(Sketcher.Constraint("DistanceX", -1, 1, 40, 2, Q("30.8277 in")))
sketch3.addConstraint(Sketcher.Constraint("DistanceX", -1, 1, 45, 2, Q("26.6909 in")))
sketch3.addConstraint(Sketcher.Constraint("DistanceX", -1, 1, 50, 2, Q("21.9519 in")))
sketch3.addConstraint(Sketcher.Constraint("DistanceX", -1, 1, 55, 2, Q("16.8151 in")))
sketch3.addConstraint(Sketcher.Constraint("DistanceY", -1, 1, 56, 2, Q("25.9866 in")))
sketch3.addConstraint(Sketcher.Constraint("DistanceX", -1, 1, 57, 2, Q("9.8758 in")))
sketch3.addConstraint(Sketcher.Constraint("DistanceX", -1, 1, 0, 2, 2397.632))
sketch3.addConstraint(Sketcher.Constraint("DistanceY", -1, 1, 12, 2, 865.5497))
sketch3.addConstraint(Sketcher.Constraint("DistanceY", -1, 1, 24, 2, 1112.138))
sketch3.addConstraint(Sketcher.Constraint("DistanceX", -1, 1, 60, 2, 71.184))
pocket1 = body.newObject("PartDesign::Pocket", "Pocket")
pocket1.Profile = sketch3
pocket1.Length = Q("5 in")
pocket1.Midplane = True

doc.recompute()
